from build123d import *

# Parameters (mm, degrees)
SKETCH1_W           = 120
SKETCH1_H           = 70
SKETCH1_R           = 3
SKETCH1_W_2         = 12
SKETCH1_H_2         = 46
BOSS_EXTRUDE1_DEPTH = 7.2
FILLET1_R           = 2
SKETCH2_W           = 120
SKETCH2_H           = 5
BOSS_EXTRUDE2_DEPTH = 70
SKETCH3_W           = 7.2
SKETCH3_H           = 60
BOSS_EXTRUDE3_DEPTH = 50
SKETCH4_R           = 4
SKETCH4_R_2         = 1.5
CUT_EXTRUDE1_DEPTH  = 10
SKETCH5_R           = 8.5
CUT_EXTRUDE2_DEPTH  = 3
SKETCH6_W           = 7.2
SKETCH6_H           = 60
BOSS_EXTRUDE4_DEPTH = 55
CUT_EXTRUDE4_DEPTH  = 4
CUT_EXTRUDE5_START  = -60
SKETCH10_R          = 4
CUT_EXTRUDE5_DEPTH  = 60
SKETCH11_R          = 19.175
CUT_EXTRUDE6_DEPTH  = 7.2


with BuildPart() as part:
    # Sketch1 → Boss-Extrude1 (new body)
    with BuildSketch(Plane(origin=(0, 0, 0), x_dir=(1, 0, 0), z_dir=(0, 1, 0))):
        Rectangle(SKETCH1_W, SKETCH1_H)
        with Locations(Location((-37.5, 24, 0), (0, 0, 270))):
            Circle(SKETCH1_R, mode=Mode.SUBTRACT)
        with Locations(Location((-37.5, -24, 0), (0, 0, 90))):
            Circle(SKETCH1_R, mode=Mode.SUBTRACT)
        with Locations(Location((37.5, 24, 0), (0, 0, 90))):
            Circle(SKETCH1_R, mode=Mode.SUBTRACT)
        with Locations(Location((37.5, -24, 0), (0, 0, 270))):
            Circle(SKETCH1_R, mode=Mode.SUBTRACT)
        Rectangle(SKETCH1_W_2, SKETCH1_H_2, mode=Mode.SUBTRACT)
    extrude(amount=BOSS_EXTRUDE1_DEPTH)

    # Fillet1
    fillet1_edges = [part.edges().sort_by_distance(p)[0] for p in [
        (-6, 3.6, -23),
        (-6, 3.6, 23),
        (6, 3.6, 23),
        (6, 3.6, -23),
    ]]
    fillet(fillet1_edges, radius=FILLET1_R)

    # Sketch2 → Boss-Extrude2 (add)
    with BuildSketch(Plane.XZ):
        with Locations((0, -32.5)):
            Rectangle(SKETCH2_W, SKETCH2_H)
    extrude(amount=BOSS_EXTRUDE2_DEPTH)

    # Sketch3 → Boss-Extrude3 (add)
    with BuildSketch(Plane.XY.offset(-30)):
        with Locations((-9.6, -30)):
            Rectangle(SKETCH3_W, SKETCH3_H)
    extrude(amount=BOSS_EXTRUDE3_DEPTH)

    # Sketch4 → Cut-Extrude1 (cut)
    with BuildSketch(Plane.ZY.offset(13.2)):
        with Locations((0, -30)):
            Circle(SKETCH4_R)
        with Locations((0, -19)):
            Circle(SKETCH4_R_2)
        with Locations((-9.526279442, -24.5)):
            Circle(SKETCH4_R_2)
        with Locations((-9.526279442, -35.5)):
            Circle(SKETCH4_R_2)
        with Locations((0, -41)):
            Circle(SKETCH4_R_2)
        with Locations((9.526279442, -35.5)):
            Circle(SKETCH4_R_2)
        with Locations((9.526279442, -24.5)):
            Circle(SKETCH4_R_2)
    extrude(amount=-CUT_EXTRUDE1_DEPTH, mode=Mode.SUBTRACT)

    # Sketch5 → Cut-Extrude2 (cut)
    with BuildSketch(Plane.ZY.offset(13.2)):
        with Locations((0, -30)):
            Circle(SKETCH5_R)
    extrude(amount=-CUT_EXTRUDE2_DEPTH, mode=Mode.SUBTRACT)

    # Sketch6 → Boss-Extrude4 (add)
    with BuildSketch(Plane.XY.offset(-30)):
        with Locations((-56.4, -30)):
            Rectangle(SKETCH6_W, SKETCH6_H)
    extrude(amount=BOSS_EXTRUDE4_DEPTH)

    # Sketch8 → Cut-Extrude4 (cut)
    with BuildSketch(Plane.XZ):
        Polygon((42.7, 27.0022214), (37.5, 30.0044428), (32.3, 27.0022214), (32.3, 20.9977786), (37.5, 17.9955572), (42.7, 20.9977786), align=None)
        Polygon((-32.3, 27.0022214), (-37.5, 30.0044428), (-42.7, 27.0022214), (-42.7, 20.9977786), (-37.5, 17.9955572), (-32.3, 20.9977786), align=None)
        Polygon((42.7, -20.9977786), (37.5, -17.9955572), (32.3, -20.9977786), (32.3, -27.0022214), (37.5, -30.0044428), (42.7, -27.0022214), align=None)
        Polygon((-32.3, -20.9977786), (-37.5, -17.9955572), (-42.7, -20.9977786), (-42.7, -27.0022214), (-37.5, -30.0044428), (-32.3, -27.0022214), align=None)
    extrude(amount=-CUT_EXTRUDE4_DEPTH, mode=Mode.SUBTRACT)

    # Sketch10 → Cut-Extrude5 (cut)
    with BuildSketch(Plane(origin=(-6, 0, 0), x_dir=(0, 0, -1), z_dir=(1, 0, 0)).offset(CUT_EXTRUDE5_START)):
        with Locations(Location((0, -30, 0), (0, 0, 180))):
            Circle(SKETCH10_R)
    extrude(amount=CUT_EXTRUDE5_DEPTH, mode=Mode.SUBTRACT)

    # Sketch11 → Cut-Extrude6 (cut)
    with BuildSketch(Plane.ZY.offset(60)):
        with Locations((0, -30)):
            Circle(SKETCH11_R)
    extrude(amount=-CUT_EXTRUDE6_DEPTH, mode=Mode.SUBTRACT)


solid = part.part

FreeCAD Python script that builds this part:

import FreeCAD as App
import Part
import Sketcher

V = App.Vector
Q = App.Units.Quantity


def edges_at(feature, points):
    """Names of the edges that pass closest to the given points."""
    edges = feature.Shape.Edges
    near = lambda p: min(range(len(edges)), key=lambda i: edges[i].distToShape(Part.Vertex(*p))[0])
    return sorted({f"Edge{near(p) + 1}" for p in points})

doc = App.newDocument("Part")
body = doc.addObject("PartDesign::Body", "Body")

# Sketch on XZ plane
sketch1 = doc.addObject("Sketcher::SketchObject", "Sketch")
body.addObject(sketch1)
sketch1.AttachmentSupport = (doc.XZ_Plane, [""])
sketch1.MapMode = "FlatFace"
sketch1.addGeometry(Part.LineSegment(V(-60, -35, 0), V(-60, 35, 0)), False)
sketch1.addGeometry(Part.LineSegment(V(-60, 35, 0), V(60, 35, 0)), False)
sketch1.addGeometry(Part.LineSegment(V(60, 35, 0), V(60, -35, 0)), False)
sketch1.addGeometry(Part.LineSegment(V(60, -35, 0), V(-60, -35, 0)), False)
sketch1.addGeometry(Part.Circle(V(-37.5, 24, 0), V(0, 0, 1), 3), False)
sketch1.addGeometry(Part.Circle(V(37.5, 24, 0), V(0, 0, 1), 3), False)
sketch1.addGeometry(Part.Circle(V(-37.5, -24, 0), V(0, 0, 1), 3), False)
sketch1.addGeometry(Part.LineSegment(V(6, 23, 0), V(-6, 23, 0)), False)
sketch1.addGeometry(Part.LineSegment(V(-6, 23, 0), V(-6, -23, 0)), False)
sketch1.addGeometry(Part.LineSegment(V(-6, -23, 0), V(6, -23, 0)), False)
sketch1.addGeometry(Part.LineSegment(V(6, -23, 0), V(6, 23, 0)), False)
sketch1.addGeometry(Part.Circle(V(37.5, -24, 0), V(0, 0, 1), 3), False)
sketch1.addConstraint(Sketcher.Constraint("Coincident", 0, 2, 1, 1))
sketch1.addConstraint(Sketcher.Constraint("Coincident", 1, 2, 2, 1))
sketch1.addConstraint(Sketcher.Constraint("Coincident", 2, 2, 3, 1))
sketch1.addConstraint(Sketcher.Constraint("Coincident", 3, 2, 0, 1))
sketch1.addConstraint(Sketcher.Constraint("Coincident", 7, 2, 8, 1))
sketch1.addConstraint(Sketcher.Constraint("Coincident", 8, 2, 9, 1))
sketch1.addConstraint(Sketcher.Constraint("Coincident", 9, 2, 10, 1))
sketch1.addConstraint(Sketcher.Constraint("Coincident", 10, 2, 7, 1))
sketch1.addConstraint(Sketcher.Constraint("Vertical", 0))
sketch1.addConstraint(Sketcher.Constraint("Horizontal", 1))
sketch1.addConstraint(Sketcher.Constraint("Vertical", 2))
sketch1.addConstraint(Sketcher.Constraint("Horizontal", 3))
sketch1.addConstraint(Sketcher.Constraint("Horizontal", 7))
sketch1.addConstraint(Sketcher.Constraint("Vertical", 8))
sketch1.addConstraint(Sketcher.Constraint("Horizontal", 9))
sketch1.addConstraint(Sketcher.Constraint("Vertical", 10))
sketch1.addConstraint(Sketcher.Constraint("Equal", 4, 5))
sketch1.addConstraint(Sketcher.Constraint("Equal", 5, 6))
sketch1.addConstraint(Sketcher.Constraint("Equal", 6, 11))
sketch1.addConstraint(Sketcher.Constraint("Symmetric", 5, 3, 6, 3, -1, 1))
sketch1.addConstraint(Sketcher.Constraint("Symmetric", 4, 3, 11, 3, -1, 1))
sketch1.addConstraint(Sketcher.Constraint("Symmetric", 0, 2, 2, 2, -1, 1))
sketch1.addConstraint(Sketcher.Constraint("Symmetric", 7, 2, 9, 2, -1, 1))
sketch1.addConstraint(Sketcher.Constraint("Symmetric", 4, 3, 5, 3, -2))
sketch1.addConstraint(Sketcher.Constraint("Diameter", 4, 6.0))
sketch1.addConstraint(Sketcher.Constraint("DistanceX", 1, 1, 1, 2, 120.0))
sketch1.addConstraint(Sketcher.Constraint("DistanceX", 7, 2, 7, 1, 12.0))
sketch1.addConstraint(Sketcher.Constraint("DistanceY", 0, 1, 0, 2, 70.0))
sketch1.addConstraint(Sketcher.Constraint("DistanceY", 8, 2, 8, 1, 46.0))
sketch1.addConstraint(Sketcher.Constraint("DistanceY", -1, 1, 4, 3, 24.0))
sketch1.addConstraint(Sketcher.Constraint("DistanceX", 4, 3, 5, 3, 75.0))
pad1 = doc.addObject("PartDesign::Pad", "Pad")
body.addObject(pad1)
pad1.Profile = sketch1
pad1.Length = 7.2
pad1.Reversed = True
doc.recompute()

fillet = doc.addObject("PartDesign::Fillet", "Fillet")
body.addObject(fillet)
fillet.Base = (pad1, edges_at(pad1, [
    (-6, 3.6, -23),
    (-6, 3.6, 23),
    (6, 3.6, 23),
    (6, 3.6, -23),
]))
fillet.Radius = 2

# Sketch on XZ plane
sketch2 = doc.addObject("Sketcher::SketchObject", "Sketch001")
body.addObject(sketch2)
sketch2.AttachmentSupport = (doc.XZ_Plane, [""])
sketch2.MapMode = "FlatFace"
sketch2.addGeometry(Part.LineSegment(V(-60, -30, 0), V(-60, -35, 0)), False)
sketch2.addGeometry(Part.LineSegment(V(-60, -35, 0), V(60, -35, 0)), False)
sketch2.addGeometry(Part.LineSegment(V(60, -35, 0), V(60, -30, 0)), False)
sketch2.addGeometry(Part.LineSegment(V(60, -30, 0), V(-60, -30, 0)), False)
sketch2.addConstraint(Sketcher.Constraint("Coincident", 0, 2, 1, 1))
sketch2.addConstraint(Sketcher.Constraint("Coincident", 1, 2, 2, 1))
sketch2.addConstraint(Sketcher.Constraint("Coincident", 2, 2, 3, 1))
sketch2.addConstraint(Sketcher.Constraint("Coincident", 3, 2, 0, 1))
sketch2.addConstraint(Sketcher.Constraint("Vertical", 0))
sketch2.addConstraint(Sketcher.Constraint("Horizontal", 1))
sketch2.addConstraint(Sketcher.Constraint("Vertical", 2))
sketch2.addConstraint(Sketcher.Constraint("Horizontal", 3))
sketch2.addConstraint(Sketcher.Constraint("DistanceX", 1, 1, 1, 2, 120.0))
sketch2.addConstraint(Sketcher.Constraint("DistanceY", 0, 2, 0, 1, 5.0))
sketch2.addConstraint(Sketcher.Constraint("DistanceX", 0, 2, -1, 1, 60.0))
sketch2.addConstraint(Sketcher.Constraint("DistanceY", 0, 2, -1, 1, 35.0))
pad2 = doc.addObject("PartDesign::Pad", "Pad001")
body.addObject(pad2)
pad2.Profile = sketch2
pad2.Length = 70

# Sketch on XY plane
sketch3 = doc.addObject("Sketcher::SketchObject", "Sketch002")
body.addObject(sketch3)
sketch3.AttachmentSupport = (doc.XY_Plane, [""])
sketch3.MapMode = "FlatFace"
sketch3.AttachmentOffset = App.Placement(V(0, 0, -30), App.Rotation())
sketch3.addGeometry(Part.LineSegment(V(-13, 0, 0), V(-13, -60, 0)), False)
sketch3.addGeometry(Part.LineSegment(V(-13, -60, 0), V(-6, -60, 0)), False)
sketch3.addGeometry(Part.LineSegment(V(-6, -60, 0), V(-6, 0, 0)), False)
sketch3.addGeometry(Part.LineSegment(V(-6, 0, 0), V(-13, 0, 0)), False)
sketch3.addConstraint(Sketcher.Constraint("Coincident", 0, 2, 1, 1))
sketch3.addConstraint(Sketcher.Constraint("Coincident", 1, 2, 2, 1))
sketch3.addConstraint(Sketcher.Constraint("Coincident", 2, 2, 3, 1))
sketch3.addConstraint(Sketcher.Constraint("Coincident", 3, 2, 0, 1))
sketch3.addConstraint(Sketcher.Constraint("Vertical", 0))
sketch3.addConstraint(Sketcher.Constraint("Horizontal", 1))
sketch3.addConstraint(Sketcher.Constraint("Vertical", 2))
sketch3.addConstraint(Sketcher.Constraint("Horizontal", 3))
sketch3.addConstraint(Sketcher.Constraint("PointOnObject", 2, 2, -1))
sketch3.addConstraint(Sketcher.Constraint("DistanceY", 0, 2, 0, 1, 60.0))
sketch3.addConstraint(Sketcher.Constraint("DistanceX", 1, 1, 1, 2, 7.2))
sketch3.addConstraint(Sketcher.Constraint("DistanceX", 1, 2, -1, 1, 6.0))
pad3 = doc.addObject("PartDesign::Pad", "Pad002")
body.addObject(pad3)
pad3.Profile = sketch3
pad3.Length = 50

# Sketch on YZ plane
sketch4 = doc.addObject("Sketcher::SketchObject", "Sketch003")
body.addObject(sketch4)
sketch4.AttachmentSupport = (doc.YZ_Plane, [""])
sketch4.MapMode = "FlatFace"
sketch4.AttachmentOffset = App.Placement(V(0, 0, -13.2), App.Rotation())
sketch4.addGeometry(Part.Circle(V(-30, 0, 0), V(0, 0, 1), 4), False)
sketch4.addGeometry(Part.Circle(V(-19, 0, 0), V(0, 0, 1), 1.5), False)
sketch4.addGeometry(Part.Circle(V(-24.5, -9.5, 0), V(0, 0, 1), 1.5), False)
sketch4.addGeometry(Part.Circle(V(-35.5, -9.5, 0), V(0, 0, 1), 1.5), False)
sketch4.addGeometry(Part.Circle(V(-41, 0, 0), V(0, 0, 1), 1.5), False)
sketch4.addGeometry(Part.Circle(V(-35.5, 9.5, 0), V(0, 0, 1), 1.5), False)
sketch4.addGeometry(Part.Circle(V(-24.5, 9.5, 0), V(0, 0, 1), 1.5), False)
sketch4.addConstraint(Sketcher.Constraint("Equal", 1, 2))
sketch4.addConstraint(Sketcher.Constraint("Equal", 2, 3))
sketch4.addConstraint(Sketcher.Constraint("Equal", 3, 4))
sketch4.addConstraint(Sketcher.Constraint("Equal", 4, 5))
sketch4.addConstraint(Sketcher.Constraint("Equal", 5, 6))
sketch4.addConstraint(Sketcher.Constraint("Symmetric", 3, 3, 5, 3, -1))
sketch4.addConstraint(Sketcher.Constraint("Symmetric", 2, 3, 6, 3, -1))
sketch4.addConstraint(Sketcher.Constraint("PointOnObject", 0, 3, -1))
sketch4.addConstraint(Sketcher.Constraint("PointOnObject", 1, 3, -1))
sketch4.addConstraint(Sketcher.Constraint("PointOnObject", 4, 3, -1))
sketch4.addConstraint(Sketcher.Constraint("Horizontal", 2, 3, 3, 3))
sketch4.addConstraint(Sketcher.Constraint("Diameter", 0, 8.0))
sketch4.addConstraint(Sketcher.Constraint("Diameter", 1, 3.0))
sketch4.addConstraint(Sketcher.Constraint("DistanceX", 0, 3, -1, 1, 30.0))
sketch4.addConstraint(Sketcher.Constraint("DistanceX", 1, 3, -1, 1, 19.0))
sketch4.addConstraint(Sketcher.Constraint("DistanceX", 4, 3, -1, 1, 41.0))
sketch4.addConstraint(Sketcher.Constraint("DistanceX", 3, 3, 2, 3, 11.0))
sketch4.addConstraint(Sketcher.Constraint("DistanceX", 2, 3, -1, 1, 24.5))
sketch4.addConstraint(Sketcher.Constraint("DistanceY", 2, 3, -1, 1, 9.526279))
pocket1 = doc.addObject("PartDesign::Pocket", "Pocket")
body.addObject(pocket1)
pocket1.Profile = sketch4
pocket1.Length = 10
pocket1.Reversed = True

# Sketch on YZ plane
sketch5 = doc.addObject("Sketcher::SketchObject", "Sketch004")
body.addObject(sketch5)
sketch5.AttachmentSupport = (doc.YZ_Plane, [""])
sketch5.MapMode = "FlatFace"
sketch5.AttachmentOffset = App.Placement(V(0, 0, -13.2), App.Rotation())
sketch5.addGeometry(Part.Circle(V(-30, 0, 0), V(0, 0, 1), 8), False)
sketch5.addConstraint(Sketcher.Constraint("PointOnObject", 0, 3, -1))
sketch5.addConstraint(Sketcher.Constraint("Diameter", 0, 17.0))
sketch5.addConstraint(Sketcher.Constraint("DistanceX", 0, 3, -1, 1, 30.0))
pocket2 = doc.addObject("PartDesign::Pocket", "Pocket001")
body.addObject(pocket2)
pocket2.Profile = sketch5
pocket2.Length = 3
pocket2.Reversed = True

# Sketch on XY plane
sketch6 = doc.addObject("Sketcher::SketchObject", "Sketch005")
body.addObject(sketch6)
sketch6.AttachmentSupport = (doc.XY_Plane, [""])
sketch6.MapMode = "FlatFace"
sketch6.AttachmentOffset = App.Placement(V(0, 0, -30), App.Rotation())
sketch6.addGeometry(Part.LineSegment(V(-60, 0, 0), V(-60, -60, 0)), False)
sketch6.addGeometry(Part.LineSegment(V(-60, -60, 0), V(-53, -60, 0)), False)
sketch6.addGeometry(Part.LineSegment(V(-53, -60, 0), V(-53, 0, 0)), False)
sketch6.addGeometry(Part.LineSegment(V(-53, 0, 0), V(-60, 0, 0)), False)
sketch6.addConstraint(Sketcher.Constraint("Coincident", 0, 2, 1, 1))
sketch6.addConstraint(Sketcher.Constraint("Coincident", 1, 2, 2, 1))
sketch6.addConstraint(Sketcher.Constraint("Coincident", 2, 2, 3, 1))
sketch6.addConstraint(Sketcher.Constraint("Coincident", 3, 2, 0, 1))
sketch6.addConstraint(Sketcher.Constraint("Vertical", 0))
sketch6.addConstraint(Sketcher.Constraint("Horizontal", 1))
sketch6.addConstraint(Sketcher.Constraint("Vertical", 2))
sketch6.addConstraint(Sketcher.Constraint("Horizontal", 3))
sketch6.addConstraint(Sketcher.Constraint("PointOnObject", 2, 2, -1))
sketch6.addConstraint(Sketcher.Constraint("DistanceY", 0, 2, 0, 1, 60.0))
sketch6.addConstraint(Sketcher.Constraint("DistanceX", 1, 1, 1, 2, 7.2))
sketch6.addConstraint(Sketcher.Constraint("DistanceX", 0, 2, -1, 1, 60.0))
pad4 = doc.addObject("PartDesign::Pad", "Pad003")
body.addObject(pad4)
pad4.Profile = sketch6
pad4.Length = 55

# Sketch on XZ plane
sketch7 = doc.addObject("Sketcher::SketchObject", "Sketch006")
body.addObject(sketch7)
sketch7.AttachmentSupport = (doc.XZ_Plane, [""])
sketch7.MapMode = "FlatFace"
sketch7.addGeometry(Part.LineSegment(V(43, 27, 0), V(38, 30, 0)), False)
sketch7.addGeometry(Part.LineSegment(V(38, 30, 0), V(32, 27, 0)), False)
sketch7.addGeometry(Part.LineSegment(V(32, 27, 0), V(32, 21, 0)), False)
sketch7.addGeometry(Part.LineSegment(V(32, 21, 0), V(38, 18, 0)), False)
sketch7.addGeometry(Part.LineSegment(V(38, 18, 0), V(43, 21, 0)), False)
sketch7.addGeometry(Part.LineSegment(V(43, 21, 0), V(43, 27, 0)), False)
sketch7.addGeometry(Part.LineSegment(V(-32, 27, 0), V(-38, 30, 0)), False)
sketch7.addGeometry(Part.LineSegment(V(-38, 30, 0), V(-43, 27, 0)), False)
sketch7.addGeometry(Part.LineSegment(V(-43, 27, 0), V(-43, 21, 0)), False)
sketch7.addGeometry(Part.LineSegment(V(-43, 21, 0), V(-38, 18, 0)), False)
sketch7.addGeometry(Part.LineSegment(V(-38, 18, 0), V(-32, 21, 0)), False)
sketch7.addGeometry(Part.LineSegment(V(-32, 21, 0), V(-32, 27, 0)), False)
sketch7.addGeometry(Part.LineSegment(V(43, -21, 0), V(38, -18, 0)), False)
sketch7.addGeometry(Part.LineSegment(V(38, -18, 0), V(32, -21, 0)), False)
sketch7.addGeometry(Part.LineSegment(V(32, -21, 0), V(32, -27, 0)), False)
sketch7.addGeometry(Part.LineSegment(V(32, -27, 0), V(38, -30, 0)), False)
sketch7.addGeometry(Part.LineSegment(V(38, -30, 0), V(43, -27, 0)), False)
sketch7.addGeometry(Part.LineSegment(V(43, -27, 0), V(43, -21, 0)), False)
sketch7.addGeometry(Part.LineSegment(V(-32, -21, 0), V(-38, -18, 0)), False)
sketch7.addGeometry(Part.LineSegment(V(-38, -18, 0), V(-43, -21, 0)), False)
sketch7.addGeometry(Part.LineSegment(V(-43, -21, 0), V(-43, -27, 0)), False)
sketch7.addGeometry(Part.LineSegment(V(-43, -27, 0), V(-38, -30, 0)), False)
sketch7.addGeometry(Part.LineSegment(V(-38, -30, 0), V(-32, -27, 0)), False)
sketch7.addGeometry(Part.LineSegment(V(-32, -27, 0), V(-32, -21, 0)), False)
sketch7.addConstraint(Sketcher.Constraint("Coincident", 0, 2, 1, 1))
sketch7.addConstraint(Sketcher.Constraint("Coincident", 1, 2, 2, 1))
sketch7.addConstraint(Sketcher.Constraint("Coincident", 2, 2, 3, 1))
sketch7.addConstraint(Sketcher.Constraint("Coincident", 3, 2, 4, 1))
sketch7.addConstraint(Sketcher.Constraint("Coincident", 4, 2, 5, 1))
sketch7.addConstraint(Sketcher.Constraint("Coincident", 5, 2, 0, 1))
sketch7.addConstraint(Sketcher.Constraint("Coincident", 6, 2, 7, 1))
sketch7.addConstraint(Sketcher.Constraint("Coincident", 7, 2, 8, 1))
sketch7.addConstraint(Sketcher.Constraint("Coincident", 8, 2, 9, 1))
sketch7.addConstraint(Sketcher.Constraint("Coincident", 9, 2, 10, 1))
sketch7.addConstraint(Sketcher.Constraint("Coincident", 10, 2, 11, 1))
sketch7.addConstraint(Sketcher.Constraint("Coincident", 11, 2, 6, 1))
sketch7.addConstraint(Sketcher.Constraint("Coincident", 12, 2, 13, 1))
sketch7.addConstraint(Sketcher.Constraint("Coincident", 13, 2, 14, 1))
sketch7.addConstraint(Sketcher.Constraint("Coincident", 14, 2, 15, 1))
sketch7.addConstraint(Sketcher.Constraint("Coincident", 15, 2, 16, 1))
sketch7.addConstraint(Sketcher.Constraint("Coincident", 16, 2, 17, 1))
sketch7.addConstraint(Sketcher.Constraint("Coincident", 17, 2, 12, 1))
sketch7.addConstraint(Sketcher.Constraint("Coincident", 18, 2, 19, 1))
sketch7.addConstraint(Sketcher.Constraint("Coincident", 19, 2, 20, 1))
sketch7.addConstraint(Sketcher.Constraint("Coincident", 20, 2, 21, 1))
sketch7.addConstraint(Sketcher.Constraint("Coincident", 21, 2, 22, 1))
sketch7.addConstraint(Sketcher.Constraint("Coincident", 22, 2, 23, 1))
sketch7.addConstraint(Sketcher.Constraint("Coincident", 23, 2, 18, 1))
sketch7.addConstraint(Sketcher.Constraint("Vertical", 2))
sketch7.addConstraint(Sketcher.Constraint("Vertical", 5))
sketch7.addConstraint(Sketcher.Constraint("Vertical", 8))
sketch7.addConstraint(Sketcher.Constraint("Vertical", 11))
sketch7.addConstraint(Sketcher.Constraint("Vertical", 14))
sketch7.addConstraint(Sketcher.Constraint("Vertical", 17))
sketch7.addConstraint(Sketcher.Constraint("Vertical", 20))
sketch7.addConstraint(Sketcher.Constraint("Vertical", 23))
sketch7.addConstraint(Sketcher.Constraint("Symmetric", 9, 2, 12, 2, -1, 1))
sketch7.addConstraint(Sketcher.Constraint("Symmetric", 10, 2, 13, 2, -1, 1))
sketch7.addConstraint(Sketcher.Constraint("Symmetric", 6, 2, 15, 2, -1, 1))
sketch7.addConstraint(Sketcher.Constraint("Symmetric", 7, 2, 16, 2, -1, 1))
sketch7.addConstraint(Sketcher.Constraint("Symmetric", 3, 2, 18, 2, -1, 1))
sketch7.addConstraint(Sketcher.Constraint("Symmetric", 4, 2, 19, 2, -1, 1))
sketch7.addConstraint(Sketcher.Constraint("Symmetric", 0, 2, 21, 2, -1, 1))
sketch7.addConstraint(Sketcher.Constraint("Symmetric", 1, 2, 22, 2, -1, 1))
sketch7.addConstraint(Sketcher.Constraint("Symmetric", 0, 2, 6, 2, -2))
sketch7.addConstraint(Sketcher.Constraint("Symmetric", 5, 2, 7, 2, -2))
sketch7.addConstraint(Sketcher.Constraint("Symmetric", 3, 2, 9, 2, -2))
sketch7.addConstraint(Sketcher.Constraint("Symmetric", 2, 2, 10, 2, -2))
sketch7.addConstraint(Sketcher.Constraint("Parallel", 0, 3))
sketch7.addConstraint(Sketcher.Constraint("Parallel", 1, 4))
sketch7.addConstraint(Sketcher.Constraint("Parallel", 3, 6))
sketch7.addConstraint(Sketcher.Constraint("Parallel", 4, 7))
sketch7.addConstraint(Sketcher.Constraint("Parallel", 6, 9))
sketch7.addConstraint(Sketcher.Constraint("Parallel", 9, 12))
sketch7.addConstraint(Sketcher.Constraint("Parallel", 12, 15))
sketch7.addConstraint(Sketcher.Constraint("Parallel", 15, 18))
sketch7.addConstraint(Sketcher.Constraint("Parallel", 18, 21))
sketch7.addConstraint(Sketcher.Constraint("Horizontal", 2, 2, 4, 2))
sketch7.addConstraint(Sketcher.Constraint("Horizontal", 1, 2, 5, 2))
sketch7.addConstraint(Sketcher.Constraint("Angle", 0, Q("150 deg")))
sketch7.addConstraint(Sketcher.Constraint("DistanceX", 6, 2, 0, 2, 75.0))
sketch7.addConstraint(Sketcher.Constraint("DistanceY", 13, 2, 1, 2, 48.0))
sketch7.addConstraint(Sketcher.Constraint("DistanceX", -1, 1, 1, 2, 32.3))
sketch7.addConstraint(Sketcher.Constraint("DistanceY", 2, 2, 2, 1, 6.004443))
pocket3 = doc.addObject("PartDesign::Pocket", "Pocket002")
body.addObject(pocket3)
pocket3.Profile = sketch7
pocket3.Length = 4

# Sketch on YZ plane
sketch8 = doc.addObject("Sketcher::SketchObject", "Sketch007")
body.addObject(sketch8)
sketch8.AttachmentSupport = (doc.YZ_Plane, [""])
sketch8.MapMode = "FlatFace"
sketch8.AttachmentOffset = App.Placement(V(0, 0, -66), App.Rotation())
sketch8.addGeometry(Part.Circle(V(-30, 0, 0), V(0, 0, 1), 4), False)
sketch8.addConstraint(Sketcher.Constraint("PointOnObject", 0, 3, -1))
sketch8.addConstraint(Sketcher.Constraint("Diameter", 0, 8.0))
sketch8.addConstraint(Sketcher.Constraint("DistanceX", 0, 3, -1, 1, 30.0))
pocket4 = doc.addObject("PartDesign::Pocket", "Pocket003")
body.addObject(pocket4)
pocket4.Profile = sketch8
pocket4.Length = 60
pocket4.Reversed = True

# Sketch on YZ plane
sketch9 = doc.addObject("Sketcher::SketchObject", "Sketch008")
body.addObject(sketch9)
sketch9.AttachmentSupport = (doc.YZ_Plane, [""])
sketch9.MapMode = "FlatFace"
sketch9.AttachmentOffset = App.Placement(V(0, 0, -60), App.Rotation())
sketch9.addGeometry(Part.Circle(V(-30, 0, 0), V(0, 0, 1), 19), False)
sketch9.addConstraint(Sketcher.Constraint("PointOnObject", 0, 3, -1))
sketch9.addConstraint(Sketcher.Constraint("Diameter", 0, 38.35))
sketch9.addConstraint(Sketcher.Constraint("DistanceX", 0, 3, -1, 1, 30.0))
pocket5 = doc.addObject("PartDesign::Pocket", "Pocket004")
body.addObject(pocket5)
pocket5.Profile = sketch9
pocket5.Length = 7.2
pocket5.Reversed = True

doc.recompute()
